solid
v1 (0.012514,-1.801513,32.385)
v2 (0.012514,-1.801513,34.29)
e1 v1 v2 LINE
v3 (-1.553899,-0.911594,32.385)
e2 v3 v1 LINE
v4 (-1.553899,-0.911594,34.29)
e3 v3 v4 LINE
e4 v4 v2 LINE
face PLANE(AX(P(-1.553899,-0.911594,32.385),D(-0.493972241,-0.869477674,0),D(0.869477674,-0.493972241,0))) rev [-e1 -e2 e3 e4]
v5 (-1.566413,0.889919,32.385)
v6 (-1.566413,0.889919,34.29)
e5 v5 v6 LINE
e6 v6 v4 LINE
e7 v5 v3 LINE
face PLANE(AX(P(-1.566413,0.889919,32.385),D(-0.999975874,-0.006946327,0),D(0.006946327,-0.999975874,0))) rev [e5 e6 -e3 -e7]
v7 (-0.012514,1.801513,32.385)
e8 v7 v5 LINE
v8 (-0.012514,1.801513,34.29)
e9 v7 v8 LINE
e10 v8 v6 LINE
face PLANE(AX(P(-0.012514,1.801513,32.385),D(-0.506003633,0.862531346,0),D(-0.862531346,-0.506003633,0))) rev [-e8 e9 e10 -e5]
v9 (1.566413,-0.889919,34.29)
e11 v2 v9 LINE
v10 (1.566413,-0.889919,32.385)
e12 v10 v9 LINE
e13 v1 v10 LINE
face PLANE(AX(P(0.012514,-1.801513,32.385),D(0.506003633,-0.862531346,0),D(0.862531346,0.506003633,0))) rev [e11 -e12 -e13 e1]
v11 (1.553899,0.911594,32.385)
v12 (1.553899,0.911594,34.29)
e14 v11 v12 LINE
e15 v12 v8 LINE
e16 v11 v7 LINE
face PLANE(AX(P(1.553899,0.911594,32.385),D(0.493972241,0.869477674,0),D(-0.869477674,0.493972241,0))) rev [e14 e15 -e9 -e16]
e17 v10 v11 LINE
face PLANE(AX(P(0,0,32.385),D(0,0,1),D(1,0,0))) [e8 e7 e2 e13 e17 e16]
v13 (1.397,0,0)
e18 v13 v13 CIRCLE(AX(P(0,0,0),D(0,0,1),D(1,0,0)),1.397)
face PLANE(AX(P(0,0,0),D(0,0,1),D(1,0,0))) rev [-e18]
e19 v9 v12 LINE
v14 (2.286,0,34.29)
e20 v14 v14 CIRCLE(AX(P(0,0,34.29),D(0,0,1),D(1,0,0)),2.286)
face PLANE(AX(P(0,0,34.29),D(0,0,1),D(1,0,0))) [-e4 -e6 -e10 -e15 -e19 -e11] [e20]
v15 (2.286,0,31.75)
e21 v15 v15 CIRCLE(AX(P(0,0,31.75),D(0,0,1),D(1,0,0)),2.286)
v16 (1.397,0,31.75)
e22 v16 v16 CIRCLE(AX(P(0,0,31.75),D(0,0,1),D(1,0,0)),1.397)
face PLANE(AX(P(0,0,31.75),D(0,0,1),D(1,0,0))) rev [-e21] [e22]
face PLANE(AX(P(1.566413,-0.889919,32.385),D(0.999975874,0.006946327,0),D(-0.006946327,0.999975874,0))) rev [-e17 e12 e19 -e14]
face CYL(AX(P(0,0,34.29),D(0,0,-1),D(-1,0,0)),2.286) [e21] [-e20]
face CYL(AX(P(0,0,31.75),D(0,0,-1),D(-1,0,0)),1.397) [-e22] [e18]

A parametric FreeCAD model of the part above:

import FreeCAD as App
import Part
import Sketcher

V = App.Vector
Q = App.Units.Quantity

doc = App.newDocument("Part")
body = doc.addObject("PartDesign::Body", "Body")

sketch1 = body.newObject("Sketcher::SketchObject", "Sketch")
sketch1.AttachmentSupport = (doc.getObject("XY_Plane"), [""])
sketch1.MapMode = "FlatFace"
sketch1.addGeometry(Part.Circle(V(0, 0, 0), V(0, 0, 1), 1.4), False)
sketch1.addConstraint([
    Sketcher.Constraint("Coincident", 0, 3, -1, 1),
    Sketcher.Constraint("Diameter", 0, Q("0.11 in")),
])
pad1 = body.newObject("PartDesign::Pad", "Pad")
pad1.Profile = sketch1
pad1.Length = Q("1.25 in")

sketch2 = body.newObject("Sketcher::SketchObject", "Sketch001")
sketch2.AttachmentSupport = (doc.getObject("XY_Plane"), [""])
sketch2.MapMode = "FlatFace"
sketch2.AttachmentOffset = App.Placement(V(0, 0, 1.25 * 25.4), App.Rotation())
sketch2.addGeometry(Part.Circle(V(0, 0, 0), V(0, 0, 1), 2.3), False)
sketch2.addConstraint([
    Sketcher.Constraint("Coincident", 0, 3, -1, 1),
    Sketcher.Constraint("Diameter", 0, Q("0.18 in")),
])
pad2 = body.newObject("PartDesign::Pad", "Pad001")
pad2.Profile = sketch2
pad2.Length = Q("0.1 in")

sketch3 = body.newObject("Sketcher::SketchObject", "Sketch002")
sketch3.AttachmentSupport = (doc.getObject("XY_Plane"), [""])
sketch3.MapMode = "FlatFace"
sketch3.AttachmentOffset = App.Placement(V(0, 0, 1.35 * 25.4), App.Rotation())
sketch3.addGeometry([
    Part.LineSegment(V(1.6, -0.9, 0), V(1.6, 0.9, 0)),
    Part.LineSegment(V(1.6, 0.9, 0), V(0, 1.8, 0)),
    Part.LineSegment(V(0, 1.8, 0), V(-1.6, 0.9, 0)),
    Part.LineSegment(V(-1.6, 0.9, 0), V(-1.6, -0.9, 0)),
    Part.LineSegment(V(-1.6, -0.9, 0), V(0, -1.8, 0)),
    Part.LineSegment(V(0, -1.8, 0), V(1.6, -0.9, 0)),
], False)
sketch3.addConstraint([
    Sketcher.Constraint("Coincident", 0, 2, 1, 1),
    Sketcher.Constraint("Coincident", 1, 2, 2, 1),
    Sketcher.Constraint("Coincident", 2, 2, 3, 1),
    Sketcher.Constraint("Coincident", 3, 2, 4, 1),
    Sketcher.Constraint("Coincident", 4, 2, 5, 1),
    Sketcher.Constraint("Coincident", 5, 2, 0, 1),
    Sketcher.Constraint("Symmetric", 0, 2, 3, 2, -1, 1),
    Sketcher.Constraint("Symmetric", 1, 2, 4, 2, -1, 1),
    Sketcher.Constraint("Symmetric", 2, 2, 5, 2, -1, 1),
    Sketcher.Constraint("Equal", 0, 1),
    Sketcher.Constraint("Equal", 1, 2),
    Sketcher.Constraint("DistanceX", -1, 1, 0, 2, 1.553899),
    Sketcher.Constraint("DistanceX", 2, 2, 1, 2, 1.553899),
    Sketcher.Constraint("DistanceY", -1, 1, 2, 2, 0.889919),
    Sketcher.Constraint("DistanceY", 0, 2, 1, 2, 0.889919),
])
pocket1 = body.newObject("PartDesign::Pocket", "Pocket")
pocket1.Profile = sketch3
pocket1.Length = Q("0.075 in")

doc.recompute()
